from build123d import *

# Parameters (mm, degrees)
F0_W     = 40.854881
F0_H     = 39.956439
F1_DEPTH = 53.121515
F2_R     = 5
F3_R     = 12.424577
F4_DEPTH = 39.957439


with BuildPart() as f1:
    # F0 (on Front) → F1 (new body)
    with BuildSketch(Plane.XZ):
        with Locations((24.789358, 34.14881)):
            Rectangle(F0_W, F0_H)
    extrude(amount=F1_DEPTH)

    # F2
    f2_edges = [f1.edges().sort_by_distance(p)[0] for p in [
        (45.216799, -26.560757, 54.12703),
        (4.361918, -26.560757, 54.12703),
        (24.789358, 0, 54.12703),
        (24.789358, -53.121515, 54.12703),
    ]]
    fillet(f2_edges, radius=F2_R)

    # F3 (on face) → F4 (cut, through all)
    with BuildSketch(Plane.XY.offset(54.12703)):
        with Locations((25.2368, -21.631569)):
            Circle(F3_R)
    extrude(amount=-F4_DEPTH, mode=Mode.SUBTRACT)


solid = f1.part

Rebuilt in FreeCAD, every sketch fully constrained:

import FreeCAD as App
import Part
import Sketcher

V = App.Vector
Q = App.Units.Quantity


def edges_at(feature, points):
    """Names of the edges that pass closest to the given points."""
    edges = feature.Shape.Edges
    near = lambda p: min(range(len(edges)), key=lambda i: edges[i].distToShape(Part.Vertex(*p))[0])
    return sorted({f"Edge{near(p) + 1}" for p in points})


def add_polygon(sketch, points):
    """Adds a closed chain of lines whose ends are joined by coincident constraints."""
    first, n = sketch.GeometryCount, len(points)
    for a, b in zip(points, points[1:] + points[:1]):
        sketch.addGeometry(Part.LineSegment(App.Vector(*a, 0), App.Vector(*b, 0)), False)
    for i in range(n):
        sketch.addConstraint(Sketcher.Constraint("Coincident", first + i, 2, first + (i + 1) % n, 1))

doc = App.newDocument("Part")
params = doc.addObject("Spreadsheet::Sheet", "Params")
for row, (alias, value) in enumerate([
    ("pad1_length", "53.121515 mm"),
    ("fillet_radius", "5 mm"),
], start=1):
    params.set(f"A{row}", alias)
    params.set(f"B{row}", "=" + value)
    params.setAlias(f"B{row}", alias)

body = doc.addObject("PartDesign::Body", "Body")

# Sketch on XZ plane
sketch1 = body.newObject("Sketcher::SketchObject", "Sketch")
sketch1.AttachmentSupport = (doc.getObject("XZ_Plane"), [""])
sketch1.MapMode = "FlatFace"
add_polygon(sketch1, [(4, 54), (4, 14), (45, 14), (45, 54)])  # lines 0-3
sketch1.addConstraint([
    Sketcher.Constraint("Vertical", 0),
    Sketcher.Constraint("Horizontal", 1),
    Sketcher.Constraint("Vertical", 2),
    Sketcher.Constraint("Horizontal", 3),
    Sketcher.Constraint("DistanceX", 1, 1, 1, 2, Q("40.854881 mm")),
    Sketcher.Constraint("DistanceY", 0, 2, 0, 1, Q("39.956439 mm")),
    Sketcher.Constraint("DistanceX", -1, 1, 1, 2, Q("45.216799 mm")),
    Sketcher.Constraint("DistanceY", -1, 1, 0, 2, Q("14.17059 mm")),
])
pad1 = body.newObject("PartDesign::Pad", "Pad")
pad1.Profile = sketch1
pad1.setExpression("Length", "Params.pad1_length")
doc.recompute()

fillet = body.newObject("PartDesign::Fillet", "Fillet")
fillet.Base = (pad1, edges_at(pad1, [
    (45.217, -26.561, 54.127),
    (4.362, -26.561, 54.127),
    (24.789, 0, 54.127),
    (24.789, -53.122, 54.127),
]))
fillet.setExpression("Radius", "Params.fillet_radius")

# Sketch on XY plane
sketch2 = body.newObject("Sketcher::SketchObject", "Sketch001")
sketch2.AttachmentSupport = (doc.getObject("XY_Plane"), [""])
sketch2.MapMode = "FlatFace"
sketch2.AttachmentOffset = App.Placement(V(0, 0, 54.12703), App.Rotation())
sketch2.addGeometry(Part.Circle(V(25, -22, 0), V(0, 0, 1), 12), False)
sketch2.addConstraint([
    Sketcher.Constraint("Diameter", 0, Q("24.849154 mm")),
    Sketcher.Constraint("DistanceX", -1, 1, 0, 3, Q("25.2368 mm")),
    Sketcher.Constraint("DistanceY", 0, 3, -1, 1, Q("21.631569 mm")),
])
pocket1 = body.newObject("PartDesign::Pocket", "Pocket")
pocket1.Profile = sketch2
pocket1.Type = "ThroughAll"

doc.recompute()
